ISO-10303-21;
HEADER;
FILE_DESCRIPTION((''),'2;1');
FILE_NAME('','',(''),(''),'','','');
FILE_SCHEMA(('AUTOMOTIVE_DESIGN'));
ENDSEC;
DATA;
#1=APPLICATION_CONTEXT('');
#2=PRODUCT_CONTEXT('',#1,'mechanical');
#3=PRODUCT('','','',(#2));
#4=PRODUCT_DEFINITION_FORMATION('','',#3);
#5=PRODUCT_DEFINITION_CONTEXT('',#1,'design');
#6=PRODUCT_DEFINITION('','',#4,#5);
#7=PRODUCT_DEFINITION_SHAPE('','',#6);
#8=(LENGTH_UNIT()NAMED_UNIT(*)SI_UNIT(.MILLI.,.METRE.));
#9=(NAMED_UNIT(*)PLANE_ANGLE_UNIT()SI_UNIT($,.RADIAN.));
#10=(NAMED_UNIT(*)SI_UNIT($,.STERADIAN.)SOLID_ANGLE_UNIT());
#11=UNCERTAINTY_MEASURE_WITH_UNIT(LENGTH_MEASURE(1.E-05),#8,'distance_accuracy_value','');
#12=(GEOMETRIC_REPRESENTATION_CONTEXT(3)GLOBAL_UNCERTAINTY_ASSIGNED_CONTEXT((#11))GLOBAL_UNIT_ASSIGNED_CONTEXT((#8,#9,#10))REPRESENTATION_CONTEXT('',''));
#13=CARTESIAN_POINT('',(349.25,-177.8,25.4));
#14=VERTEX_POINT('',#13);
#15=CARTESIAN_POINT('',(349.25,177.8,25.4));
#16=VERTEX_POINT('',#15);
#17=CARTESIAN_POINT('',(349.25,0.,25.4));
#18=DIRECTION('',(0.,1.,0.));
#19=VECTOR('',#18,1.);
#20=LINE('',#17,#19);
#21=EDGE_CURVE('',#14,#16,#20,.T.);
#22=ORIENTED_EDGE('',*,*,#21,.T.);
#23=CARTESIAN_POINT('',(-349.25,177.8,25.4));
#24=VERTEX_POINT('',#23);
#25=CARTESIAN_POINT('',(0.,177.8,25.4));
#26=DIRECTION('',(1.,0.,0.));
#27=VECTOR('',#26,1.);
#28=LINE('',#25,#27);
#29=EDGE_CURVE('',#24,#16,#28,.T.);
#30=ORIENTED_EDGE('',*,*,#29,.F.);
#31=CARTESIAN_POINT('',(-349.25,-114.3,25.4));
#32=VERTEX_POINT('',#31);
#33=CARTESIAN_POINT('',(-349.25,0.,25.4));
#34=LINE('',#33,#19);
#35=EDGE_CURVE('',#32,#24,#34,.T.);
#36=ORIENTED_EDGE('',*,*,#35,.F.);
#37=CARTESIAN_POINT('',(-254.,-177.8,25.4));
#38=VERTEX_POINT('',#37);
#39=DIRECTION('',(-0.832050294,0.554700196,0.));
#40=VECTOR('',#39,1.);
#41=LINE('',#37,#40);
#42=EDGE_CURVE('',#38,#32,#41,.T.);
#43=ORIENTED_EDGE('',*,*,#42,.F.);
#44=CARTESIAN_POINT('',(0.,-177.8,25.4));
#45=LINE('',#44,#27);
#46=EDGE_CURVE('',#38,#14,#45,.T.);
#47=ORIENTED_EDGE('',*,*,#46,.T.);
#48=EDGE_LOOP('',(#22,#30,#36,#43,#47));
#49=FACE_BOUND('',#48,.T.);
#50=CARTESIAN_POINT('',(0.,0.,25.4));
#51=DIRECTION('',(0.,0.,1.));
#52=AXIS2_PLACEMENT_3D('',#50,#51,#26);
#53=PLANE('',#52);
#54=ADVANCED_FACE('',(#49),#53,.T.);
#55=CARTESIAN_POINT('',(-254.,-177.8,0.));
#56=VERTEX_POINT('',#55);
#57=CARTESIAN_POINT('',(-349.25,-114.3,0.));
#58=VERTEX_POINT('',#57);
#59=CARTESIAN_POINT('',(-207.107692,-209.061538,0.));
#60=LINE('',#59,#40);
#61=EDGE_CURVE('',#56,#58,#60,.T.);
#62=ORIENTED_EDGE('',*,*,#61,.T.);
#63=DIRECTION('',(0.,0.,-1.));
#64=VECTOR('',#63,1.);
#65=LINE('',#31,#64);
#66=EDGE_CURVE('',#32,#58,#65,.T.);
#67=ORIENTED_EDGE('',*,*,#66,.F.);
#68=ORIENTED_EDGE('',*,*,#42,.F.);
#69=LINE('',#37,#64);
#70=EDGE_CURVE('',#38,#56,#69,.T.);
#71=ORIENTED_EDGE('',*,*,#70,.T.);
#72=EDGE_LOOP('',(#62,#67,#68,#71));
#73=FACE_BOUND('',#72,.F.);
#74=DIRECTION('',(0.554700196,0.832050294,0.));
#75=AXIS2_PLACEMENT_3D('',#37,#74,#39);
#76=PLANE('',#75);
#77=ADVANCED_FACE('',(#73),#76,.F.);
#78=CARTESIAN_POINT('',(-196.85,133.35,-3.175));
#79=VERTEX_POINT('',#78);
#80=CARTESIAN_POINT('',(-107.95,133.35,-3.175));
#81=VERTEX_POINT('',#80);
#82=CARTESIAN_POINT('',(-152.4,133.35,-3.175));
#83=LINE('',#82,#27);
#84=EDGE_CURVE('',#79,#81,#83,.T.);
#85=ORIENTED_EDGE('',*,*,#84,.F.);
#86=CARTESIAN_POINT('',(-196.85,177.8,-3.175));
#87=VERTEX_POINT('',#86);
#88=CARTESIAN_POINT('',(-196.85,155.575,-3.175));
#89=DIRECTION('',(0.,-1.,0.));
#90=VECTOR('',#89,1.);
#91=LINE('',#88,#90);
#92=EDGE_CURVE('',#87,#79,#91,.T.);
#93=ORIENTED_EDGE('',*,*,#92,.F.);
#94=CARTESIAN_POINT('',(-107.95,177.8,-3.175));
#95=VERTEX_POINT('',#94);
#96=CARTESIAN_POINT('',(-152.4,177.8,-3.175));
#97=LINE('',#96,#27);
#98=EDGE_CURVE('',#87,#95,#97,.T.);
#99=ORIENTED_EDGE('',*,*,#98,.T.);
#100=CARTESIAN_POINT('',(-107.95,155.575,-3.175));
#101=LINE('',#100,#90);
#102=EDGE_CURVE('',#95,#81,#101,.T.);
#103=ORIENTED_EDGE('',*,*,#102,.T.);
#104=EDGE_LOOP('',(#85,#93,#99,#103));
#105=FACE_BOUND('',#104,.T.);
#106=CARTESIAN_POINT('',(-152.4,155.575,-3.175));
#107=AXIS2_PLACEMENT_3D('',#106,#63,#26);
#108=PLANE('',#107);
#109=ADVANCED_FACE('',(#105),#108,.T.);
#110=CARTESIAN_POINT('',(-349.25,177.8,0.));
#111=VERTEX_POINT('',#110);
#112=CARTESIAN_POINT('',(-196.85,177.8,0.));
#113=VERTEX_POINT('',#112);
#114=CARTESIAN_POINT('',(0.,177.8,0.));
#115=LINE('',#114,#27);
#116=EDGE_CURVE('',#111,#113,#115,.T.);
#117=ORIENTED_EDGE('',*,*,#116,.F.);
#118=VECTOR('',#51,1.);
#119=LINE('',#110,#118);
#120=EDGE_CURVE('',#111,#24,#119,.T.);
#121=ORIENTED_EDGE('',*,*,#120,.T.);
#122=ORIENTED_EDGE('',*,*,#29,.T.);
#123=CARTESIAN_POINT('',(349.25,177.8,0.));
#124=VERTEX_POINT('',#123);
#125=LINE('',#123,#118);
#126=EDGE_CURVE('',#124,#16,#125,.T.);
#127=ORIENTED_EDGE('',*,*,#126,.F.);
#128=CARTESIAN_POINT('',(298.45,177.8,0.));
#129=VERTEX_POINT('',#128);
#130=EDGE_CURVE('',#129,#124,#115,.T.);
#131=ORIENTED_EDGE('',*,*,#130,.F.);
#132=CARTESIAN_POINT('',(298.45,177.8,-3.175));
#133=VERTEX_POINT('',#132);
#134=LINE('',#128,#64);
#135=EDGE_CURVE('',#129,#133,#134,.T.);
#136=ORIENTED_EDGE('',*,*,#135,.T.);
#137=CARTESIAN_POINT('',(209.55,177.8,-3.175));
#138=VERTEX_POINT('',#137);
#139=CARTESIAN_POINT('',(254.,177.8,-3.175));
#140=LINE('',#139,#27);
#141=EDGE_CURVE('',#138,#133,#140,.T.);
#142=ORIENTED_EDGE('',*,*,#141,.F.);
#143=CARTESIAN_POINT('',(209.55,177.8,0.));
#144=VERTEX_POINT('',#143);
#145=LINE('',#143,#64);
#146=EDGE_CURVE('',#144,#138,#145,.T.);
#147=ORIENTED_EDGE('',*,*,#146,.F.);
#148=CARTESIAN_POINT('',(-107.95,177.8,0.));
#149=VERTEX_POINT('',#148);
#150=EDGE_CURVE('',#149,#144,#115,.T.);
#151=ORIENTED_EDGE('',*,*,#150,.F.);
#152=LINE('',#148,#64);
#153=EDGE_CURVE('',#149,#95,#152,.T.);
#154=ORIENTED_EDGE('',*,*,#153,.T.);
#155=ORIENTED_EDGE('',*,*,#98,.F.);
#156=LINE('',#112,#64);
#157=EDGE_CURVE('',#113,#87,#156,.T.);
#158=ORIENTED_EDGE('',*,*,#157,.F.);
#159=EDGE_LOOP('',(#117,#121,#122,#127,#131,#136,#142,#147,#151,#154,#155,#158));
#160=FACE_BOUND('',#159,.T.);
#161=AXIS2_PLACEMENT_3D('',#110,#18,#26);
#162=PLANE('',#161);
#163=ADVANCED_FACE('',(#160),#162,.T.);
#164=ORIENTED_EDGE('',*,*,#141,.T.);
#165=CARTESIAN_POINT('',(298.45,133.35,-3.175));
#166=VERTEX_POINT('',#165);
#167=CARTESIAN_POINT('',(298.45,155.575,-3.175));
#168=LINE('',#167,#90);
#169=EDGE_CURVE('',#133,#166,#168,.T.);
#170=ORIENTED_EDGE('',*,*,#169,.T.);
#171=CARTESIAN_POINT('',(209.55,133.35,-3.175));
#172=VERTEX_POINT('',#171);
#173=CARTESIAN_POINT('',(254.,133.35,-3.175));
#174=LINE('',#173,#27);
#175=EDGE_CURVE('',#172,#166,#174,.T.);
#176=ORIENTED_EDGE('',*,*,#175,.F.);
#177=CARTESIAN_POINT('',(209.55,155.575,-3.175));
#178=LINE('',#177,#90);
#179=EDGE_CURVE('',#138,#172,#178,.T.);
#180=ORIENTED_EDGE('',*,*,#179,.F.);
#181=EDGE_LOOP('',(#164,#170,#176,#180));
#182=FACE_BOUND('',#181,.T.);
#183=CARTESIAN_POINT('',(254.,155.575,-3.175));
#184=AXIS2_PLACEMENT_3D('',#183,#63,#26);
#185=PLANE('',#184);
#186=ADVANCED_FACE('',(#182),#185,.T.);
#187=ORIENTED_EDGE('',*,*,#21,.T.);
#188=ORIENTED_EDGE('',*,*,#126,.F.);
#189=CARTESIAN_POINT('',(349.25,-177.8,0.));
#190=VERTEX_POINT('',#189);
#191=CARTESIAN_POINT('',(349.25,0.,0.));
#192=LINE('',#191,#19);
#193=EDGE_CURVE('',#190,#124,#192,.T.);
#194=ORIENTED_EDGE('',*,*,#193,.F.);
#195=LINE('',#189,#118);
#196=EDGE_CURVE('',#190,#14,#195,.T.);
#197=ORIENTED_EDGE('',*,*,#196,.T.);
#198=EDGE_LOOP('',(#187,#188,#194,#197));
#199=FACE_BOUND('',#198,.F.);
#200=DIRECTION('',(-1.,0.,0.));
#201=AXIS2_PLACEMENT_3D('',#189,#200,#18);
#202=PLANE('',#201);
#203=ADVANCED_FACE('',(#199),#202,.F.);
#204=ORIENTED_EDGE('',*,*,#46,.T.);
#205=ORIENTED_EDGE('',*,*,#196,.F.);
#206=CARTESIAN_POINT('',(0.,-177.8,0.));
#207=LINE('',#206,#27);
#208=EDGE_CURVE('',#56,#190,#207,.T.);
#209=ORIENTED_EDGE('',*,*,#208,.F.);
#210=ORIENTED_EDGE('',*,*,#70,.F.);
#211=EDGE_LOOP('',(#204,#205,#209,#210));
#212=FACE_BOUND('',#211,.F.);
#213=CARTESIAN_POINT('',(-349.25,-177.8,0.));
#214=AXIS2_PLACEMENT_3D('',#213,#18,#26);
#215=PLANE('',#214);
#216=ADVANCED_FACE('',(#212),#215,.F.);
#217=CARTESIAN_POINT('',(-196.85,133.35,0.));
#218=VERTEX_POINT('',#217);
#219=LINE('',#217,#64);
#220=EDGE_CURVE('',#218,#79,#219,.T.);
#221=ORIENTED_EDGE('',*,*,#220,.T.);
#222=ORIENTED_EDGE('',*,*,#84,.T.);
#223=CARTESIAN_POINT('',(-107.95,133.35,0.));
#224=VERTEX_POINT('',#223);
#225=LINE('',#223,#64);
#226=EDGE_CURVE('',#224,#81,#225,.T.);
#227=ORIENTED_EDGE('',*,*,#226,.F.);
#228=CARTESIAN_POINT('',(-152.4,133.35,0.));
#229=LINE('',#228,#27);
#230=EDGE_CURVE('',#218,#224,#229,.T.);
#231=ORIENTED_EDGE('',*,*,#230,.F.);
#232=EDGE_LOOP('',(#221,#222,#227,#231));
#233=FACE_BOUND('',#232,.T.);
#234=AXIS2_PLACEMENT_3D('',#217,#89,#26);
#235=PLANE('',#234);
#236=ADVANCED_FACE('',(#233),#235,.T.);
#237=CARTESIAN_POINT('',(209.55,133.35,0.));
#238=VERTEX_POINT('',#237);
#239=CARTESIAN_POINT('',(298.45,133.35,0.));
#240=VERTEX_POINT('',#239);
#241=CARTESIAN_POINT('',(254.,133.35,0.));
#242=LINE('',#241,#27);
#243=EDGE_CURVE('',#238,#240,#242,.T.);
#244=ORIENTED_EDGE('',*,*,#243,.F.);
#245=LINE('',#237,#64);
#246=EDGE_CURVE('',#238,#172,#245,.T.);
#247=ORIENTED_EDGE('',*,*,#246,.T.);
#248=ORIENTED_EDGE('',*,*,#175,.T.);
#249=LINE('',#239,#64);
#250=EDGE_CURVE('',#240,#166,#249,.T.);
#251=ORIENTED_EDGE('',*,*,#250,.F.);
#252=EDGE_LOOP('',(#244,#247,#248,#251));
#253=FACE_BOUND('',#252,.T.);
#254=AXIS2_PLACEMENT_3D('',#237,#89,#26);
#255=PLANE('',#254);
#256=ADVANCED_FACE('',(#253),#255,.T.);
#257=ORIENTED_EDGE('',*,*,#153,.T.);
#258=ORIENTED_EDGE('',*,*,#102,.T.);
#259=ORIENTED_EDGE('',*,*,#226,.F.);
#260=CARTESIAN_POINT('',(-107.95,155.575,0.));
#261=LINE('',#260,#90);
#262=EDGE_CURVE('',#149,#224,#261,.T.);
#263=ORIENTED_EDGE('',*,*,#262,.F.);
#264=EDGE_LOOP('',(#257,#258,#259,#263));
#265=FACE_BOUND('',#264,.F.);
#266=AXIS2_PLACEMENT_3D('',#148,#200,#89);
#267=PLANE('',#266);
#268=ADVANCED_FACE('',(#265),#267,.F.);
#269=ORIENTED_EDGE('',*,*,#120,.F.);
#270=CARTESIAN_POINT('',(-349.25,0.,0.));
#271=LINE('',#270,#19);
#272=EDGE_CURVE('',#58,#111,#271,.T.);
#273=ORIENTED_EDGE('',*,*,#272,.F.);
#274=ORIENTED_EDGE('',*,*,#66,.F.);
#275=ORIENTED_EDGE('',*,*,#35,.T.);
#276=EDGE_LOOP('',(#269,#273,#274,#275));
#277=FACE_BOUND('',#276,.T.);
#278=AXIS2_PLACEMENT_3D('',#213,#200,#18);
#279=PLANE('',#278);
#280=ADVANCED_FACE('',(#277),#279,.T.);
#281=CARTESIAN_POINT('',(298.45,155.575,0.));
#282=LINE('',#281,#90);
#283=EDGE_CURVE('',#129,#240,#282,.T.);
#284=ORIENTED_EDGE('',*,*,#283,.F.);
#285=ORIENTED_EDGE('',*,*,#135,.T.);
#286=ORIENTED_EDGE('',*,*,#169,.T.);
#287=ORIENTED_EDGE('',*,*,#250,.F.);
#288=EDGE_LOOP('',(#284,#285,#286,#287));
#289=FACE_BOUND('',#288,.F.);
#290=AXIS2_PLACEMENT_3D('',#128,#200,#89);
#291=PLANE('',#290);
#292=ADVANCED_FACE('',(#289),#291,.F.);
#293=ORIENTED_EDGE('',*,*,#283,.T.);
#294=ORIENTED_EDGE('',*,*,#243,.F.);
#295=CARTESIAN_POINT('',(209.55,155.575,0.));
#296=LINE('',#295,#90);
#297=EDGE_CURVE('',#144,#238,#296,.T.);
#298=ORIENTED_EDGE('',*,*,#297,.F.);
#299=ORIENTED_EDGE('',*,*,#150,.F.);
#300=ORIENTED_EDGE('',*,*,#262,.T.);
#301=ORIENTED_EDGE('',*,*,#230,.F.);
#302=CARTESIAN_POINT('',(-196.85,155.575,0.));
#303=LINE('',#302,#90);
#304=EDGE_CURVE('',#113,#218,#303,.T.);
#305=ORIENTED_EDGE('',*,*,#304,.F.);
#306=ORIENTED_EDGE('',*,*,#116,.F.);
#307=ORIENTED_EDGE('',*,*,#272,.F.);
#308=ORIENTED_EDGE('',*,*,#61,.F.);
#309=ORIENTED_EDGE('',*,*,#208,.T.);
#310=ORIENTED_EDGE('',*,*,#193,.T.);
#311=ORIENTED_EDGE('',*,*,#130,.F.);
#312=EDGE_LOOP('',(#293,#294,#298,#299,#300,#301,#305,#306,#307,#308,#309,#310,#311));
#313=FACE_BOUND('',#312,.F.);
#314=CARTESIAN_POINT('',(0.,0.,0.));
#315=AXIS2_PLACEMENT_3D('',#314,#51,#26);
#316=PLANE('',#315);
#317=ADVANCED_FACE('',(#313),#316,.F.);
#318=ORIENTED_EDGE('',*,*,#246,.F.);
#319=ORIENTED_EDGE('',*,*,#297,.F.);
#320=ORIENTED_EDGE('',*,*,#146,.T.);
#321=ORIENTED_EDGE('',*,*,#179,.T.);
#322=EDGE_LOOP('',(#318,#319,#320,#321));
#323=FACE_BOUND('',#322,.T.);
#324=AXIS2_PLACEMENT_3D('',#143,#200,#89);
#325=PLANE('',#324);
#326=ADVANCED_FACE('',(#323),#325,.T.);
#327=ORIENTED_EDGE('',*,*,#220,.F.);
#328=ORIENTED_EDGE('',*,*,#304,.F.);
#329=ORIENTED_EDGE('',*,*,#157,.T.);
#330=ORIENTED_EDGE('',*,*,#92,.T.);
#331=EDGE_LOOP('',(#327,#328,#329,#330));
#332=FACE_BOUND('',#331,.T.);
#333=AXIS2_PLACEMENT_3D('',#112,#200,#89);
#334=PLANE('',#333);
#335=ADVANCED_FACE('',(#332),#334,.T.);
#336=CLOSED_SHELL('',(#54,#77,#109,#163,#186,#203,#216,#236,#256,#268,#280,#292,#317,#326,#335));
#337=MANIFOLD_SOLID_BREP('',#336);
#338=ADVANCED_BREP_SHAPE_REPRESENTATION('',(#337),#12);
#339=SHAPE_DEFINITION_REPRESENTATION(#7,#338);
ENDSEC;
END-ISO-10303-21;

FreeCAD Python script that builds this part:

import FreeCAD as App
import Part
import Sketcher
Q = App.Units.Quantity


def add_polygon(sketch, points):
    """Adds a closed chain of lines whose ends are joined by coincident constraints."""
    first, n = sketch.GeometryCount, len(points)
    for a, b in zip(points, points[1:] + points[:1]):
        sketch.addGeometry(Part.LineSegment(App.Vector(*a, 0), App.Vector(*b, 0)), False)
    for i in range(n):
        sketch.addConstraint(Sketcher.Constraint("Coincident", first + i, 2, first + (i + 1) % n, 1))

doc = App.newDocument("Part")
body = doc.addObject("PartDesign::Body", "Body")

sketch1 = body.newObject("Sketcher::SketchObject", "Sketch")
sketch1.AttachmentSupport = (doc.getObject("XY_Plane"), [""])
sketch1.MapMode = "FlatFace"
add_polygon(sketch1, [(-349.25, 177.8), (-349.25, -177.8), (349.25, -177.8), (349.25, 177.8)])
sketch1.addConstraint(Sketcher.Constraint("Vertical", 0))
sketch1.addConstraint(Sketcher.Constraint("Horizontal", 1))
sketch1.addConstraint(Sketcher.Constraint("Vertical", 2))
sketch1.addConstraint(Sketcher.Constraint("Horizontal", 3))
sketch1.addConstraint(Sketcher.Constraint("Symmetric", 0, 2, 2, 2, -1, 1))
sketch1.addConstraint(Sketcher.Constraint("DistanceY", 0, 2, 0, 1, Q("14 in")))
sketch1.addConstraint(Sketcher.Constraint("DistanceX", 1, 1, 1, 2, Q("27.5 in")))
pad1 = body.newObject("PartDesign::Pad", "Pad")
pad1.Profile = sketch1
pad1.Length = Q("1 in")

sketch2 = body.newObject("Sketcher::SketchObject", "Sketch001")
sketch2.AttachmentSupport = (doc.getObject("XY_Plane"), [""])
sketch2.MapMode = "FlatFace"
sketch2.AttachmentOffset = App.Placement(App.Vector(0, 0, 1 * 25.4), App.Rotation())
add_polygon(sketch2, [(-254, -177.8), (-349.25, -114.3), (-349.25, -177.8)])
sketch2.addConstraint(Sketcher.Constraint("Vertical", 1))
sketch2.addConstraint(Sketcher.Constraint("Horizontal", 2))
sketch2.addConstraint(Sketcher.Constraint("DistanceY", 1, 2, 1, 1, Q("2.5 in")))
sketch2.addConstraint(Sketcher.Constraint("DistanceY", 1, 2, -1, 1, Q("7 in")))
sketch2.addConstraint(Sketcher.Constraint("DistanceX", 2, 2, -1, 1, Q("10 in")))
sketch2.addConstraint(Sketcher.Constraint("DistanceX", 2, 1, 2, 2, Q("3.75 in")))
pocket1 = body.newObject("PartDesign::Pocket", "Pocket")
pocket1.Profile = sketch2
pocket1.Type = "ThroughAll"

sketch3 = body.newObject("Sketcher::SketchObject", "Sketch002")
sketch3.AttachmentSupport = (doc.getObject("XY_Plane"), [""])
sketch3.MapMode = "FlatFace"
add_polygon(sketch3, [(209.55, 133.35), (209.55, 177.8), (298.45, 177.8), (298.45, 133.35)])
add_polygon(sketch3, [(-196.85, 133.35), (-196.85, 177.8), (-107.95, 177.8), (-107.95, 133.35)])
sketch3.addConstraint(Sketcher.Constraint("Vertical", 0))
sketch3.addConstraint(Sketcher.Constraint("Horizontal", 1))
sketch3.addConstraint(Sketcher.Constraint("Vertical", 2))
sketch3.addConstraint(Sketcher.Constraint("Horizontal", 3))
sketch3.addConstraint(Sketcher.Constraint("Vertical", 4))
sketch3.addConstraint(Sketcher.Constraint("Horizontal", 5))
sketch3.addConstraint(Sketcher.Constraint("Vertical", 6))
sketch3.addConstraint(Sketcher.Constraint("Horizontal", 7))
sketch3.addConstraint(Sketcher.Constraint("Horizontal", 1, 2, 4, 2))
sketch3.addConstraint(Sketcher.Constraint("Horizontal", 3, 2, 6, 2))
sketch3.addConstraint(Sketcher.Constraint("Equal", 3, 5))
sketch3.addConstraint(Sketcher.Constraint("DistanceX", 1, 1, 1, 2, Q("3.5 in")))
sketch3.addConstraint(Sketcher.Constraint("DistanceY", -1, 1, 0, 2, Q("7 in")))
sketch3.addConstraint(Sketcher.Constraint("DistanceX", 4, 2, 0, 2, Q("16 in")))
sketch3.addConstraint(Sketcher.Constraint("DistanceY", 0, 1, 0, 2, Q("1.75 in")))
sketch3.addConstraint(Sketcher.Constraint("DistanceX", -1, 1, 0, 2, Q("8.25 in")))
pad2 = body.newObject("PartDesign::Pad", "Pad001")
pad2.Profile = sketch3
pad2.Length = Q("0.125 in")
pad2.Reversed = True

doc.recompute()
